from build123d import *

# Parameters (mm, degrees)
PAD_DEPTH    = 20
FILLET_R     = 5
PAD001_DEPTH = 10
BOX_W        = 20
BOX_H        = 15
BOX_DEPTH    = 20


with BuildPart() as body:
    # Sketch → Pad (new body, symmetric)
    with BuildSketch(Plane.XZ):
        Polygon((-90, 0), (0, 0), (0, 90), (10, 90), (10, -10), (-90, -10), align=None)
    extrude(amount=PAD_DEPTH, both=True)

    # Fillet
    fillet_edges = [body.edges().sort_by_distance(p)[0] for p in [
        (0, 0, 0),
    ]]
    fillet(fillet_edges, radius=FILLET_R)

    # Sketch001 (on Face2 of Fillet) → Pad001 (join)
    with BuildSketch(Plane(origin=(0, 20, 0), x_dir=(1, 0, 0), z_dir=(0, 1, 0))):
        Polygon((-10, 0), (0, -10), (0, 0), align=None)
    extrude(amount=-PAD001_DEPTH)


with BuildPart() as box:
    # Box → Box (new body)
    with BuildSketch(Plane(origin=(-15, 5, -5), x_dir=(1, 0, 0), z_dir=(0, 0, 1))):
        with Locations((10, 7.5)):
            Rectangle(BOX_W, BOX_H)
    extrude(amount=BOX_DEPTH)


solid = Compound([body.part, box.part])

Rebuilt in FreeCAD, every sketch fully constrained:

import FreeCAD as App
import Part
import Sketcher
from FreeCAD import Vector
Q = App.Units.Quantity


def edges_at(feature, points):
    """Names of the edges that pass closest to the given points."""
    edges = feature.Shape.Edges
    near = lambda p: min(range(len(edges)), key=lambda i: edges[i].distToShape(Part.Vertex(*p))[0])
    return sorted({f"Edge{near(p) + 1}" for p in points})

doc = App.newDocument("Part")
body = doc.addObject("PartDesign::Body", "Body")

sketch1 = body.newObject("Sketcher::SketchObject", "Sketch")
sketch1.AttachmentSupport = (doc.getObject("XZ_Plane"), [""])
sketch1.MapMode = "FlatFace"
sketch1.addGeometry([
    Part.LineSegment(Vector(0, 0, 0), Vector(-90, 0, 0)),
    Part.LineSegment(Vector(-90, 0, 0), Vector(-90, -10, 0)),
    Part.LineSegment(Vector(-90, -10, 0), Vector(10, -10, 0)),
    Part.LineSegment(Vector(10, -10, 0), Vector(10, 90, 0)),
    Part.LineSegment(Vector(10, 90, 0), Vector(0, 90, 0)),
    Part.LineSegment(Vector(0, 90, 0), Vector(0, 0, 0)),
], False)
sketch1.addConstraint([
    Sketcher.Constraint("Coincident", 0, 2, 1, 1),
    Sketcher.Constraint("Coincident", 1, 2, 2, 1),
    Sketcher.Constraint("Coincident", 2, 2, 3, 1),
    Sketcher.Constraint("Coincident", 3, 2, 4, 1),
    Sketcher.Constraint("Coincident", 4, 2, 5, 1),
    Sketcher.Constraint("Coincident", 5, 2, 0, 1),
    Sketcher.Constraint("Horizontal", 0),
    Sketcher.Constraint("Vertical", 1),
    Sketcher.Constraint("Horizontal", 2),
    Sketcher.Constraint("Vertical", 3),
    Sketcher.Constraint("Horizontal", 4),
    Sketcher.Constraint("Vertical", 5),
    Sketcher.Constraint("Coincident", 5, 2, -1, 1),
    Sketcher.Constraint("Equal", 4, 1),
    Sketcher.Constraint("Equal", 2, 3),
    Sketcher.Constraint("DistanceX", 0, 2, 0, 1, Q("90 mm")),
    Sketcher.Constraint("DistanceX", 2, 1, 2, 2, Q("100 mm")),
])
pad1 = body.newObject("PartDesign::Pad", "Pad")
pad1.Profile = sketch1
pad1.Length = 40
pad1.Midplane = True
doc.recompute()

fillet = body.newObject("PartDesign::Fillet", "Fillet")
fillet.Base = (pad1, edges_at(pad1, [(0, 0, 0)]))
fillet.Radius = 5

sketch2 = body.newObject("Sketcher::SketchObject", "Sketch001")
sketch2.AttachmentSupport = (doc.getObject("XZ_Plane"), [""])
sketch2.MapMode = "FlatFace"
sketch2.AttachmentOffset = App.Placement(Vector(0, 0, -20), App.Rotation())
sketch2.addGeometry([
    Part.LineSegment(Vector(-10, 0, 0), Vector(0, 10, 0)),
    Part.LineSegment(Vector(0, 10, 0), Vector(0, 0, 0)),
    Part.LineSegment(Vector(0, 0, 0), Vector(-10, 0, 0)),
], False)
sketch2.addConstraint([
    Sketcher.Constraint("Coincident", 0, 2, 1, 1),
    Sketcher.Constraint("Coincident", 1, 2, 2, 1),
    Sketcher.Constraint("Coincident", 2, 2, 0, 1),
    Sketcher.Constraint("Vertical", 1),
    Sketcher.Constraint("Horizontal", 2),
    Sketcher.Constraint("Coincident", 1, 2, -1, 1),
    Sketcher.Constraint("Equal", 2, 1),
    Sketcher.Constraint("DistanceX", 2, 2, 2, 1, Q("10 mm")),
])
pad2 = body.newObject("PartDesign::Pad", "Pad001")
pad2.Profile = sketch2
pad2.Length = 10
body2 = doc.addObject("PartDesign::Body", "Body001")

sketch3 = body2.newObject("Sketcher::SketchObject", "Sketch002")
sketch3.AttachmentSupport = (doc.getObject("XY_Plane001"), [""])
sketch3.MapMode = "FlatFace"
sketch3.AttachmentOffset = App.Placement(Vector(0, 0, -5), App.Rotation())
sketch3.addGeometry([
    Part.LineSegment(Vector(-15, 20, 0), Vector(-15, 5, 0)),
    Part.LineSegment(Vector(-15, 5, 0), Vector(5, 5, 0)),
    Part.LineSegment(Vector(5, 5, 0), Vector(5, 20, 0)),
    Part.LineSegment(Vector(5, 20, 0), Vector(-15, 20, 0)),
], False)
sketch3.addConstraint([
    Sketcher.Constraint("Coincident", 0, 2, 1, 1),
    Sketcher.Constraint("Coincident", 1, 2, 2, 1),
    Sketcher.Constraint("Coincident", 2, 2, 3, 1),
    Sketcher.Constraint("Coincident", 3, 2, 0, 1),
    Sketcher.Constraint("Vertical", 0),
    Sketcher.Constraint("Horizontal", 1),
    Sketcher.Constraint("Vertical", 2),
    Sketcher.Constraint("Horizontal", 3),
    Sketcher.Constraint("DistanceX", 1, 1, 1, 2, Q("20 mm")),
    Sketcher.Constraint("DistanceY", 0, 2, 0, 1, Q("15 mm")),
    Sketcher.Constraint("DistanceX", 0, 2, -1, 1, Q("15 mm")),
    Sketcher.Constraint("DistanceY", -1, 1, 0, 2, Q("5 mm")),
])
pad3 = body2.newObject("PartDesign::Pad", "Pad002")
pad3.Profile = sketch3
pad3.Length = 20

doc.recompute()
